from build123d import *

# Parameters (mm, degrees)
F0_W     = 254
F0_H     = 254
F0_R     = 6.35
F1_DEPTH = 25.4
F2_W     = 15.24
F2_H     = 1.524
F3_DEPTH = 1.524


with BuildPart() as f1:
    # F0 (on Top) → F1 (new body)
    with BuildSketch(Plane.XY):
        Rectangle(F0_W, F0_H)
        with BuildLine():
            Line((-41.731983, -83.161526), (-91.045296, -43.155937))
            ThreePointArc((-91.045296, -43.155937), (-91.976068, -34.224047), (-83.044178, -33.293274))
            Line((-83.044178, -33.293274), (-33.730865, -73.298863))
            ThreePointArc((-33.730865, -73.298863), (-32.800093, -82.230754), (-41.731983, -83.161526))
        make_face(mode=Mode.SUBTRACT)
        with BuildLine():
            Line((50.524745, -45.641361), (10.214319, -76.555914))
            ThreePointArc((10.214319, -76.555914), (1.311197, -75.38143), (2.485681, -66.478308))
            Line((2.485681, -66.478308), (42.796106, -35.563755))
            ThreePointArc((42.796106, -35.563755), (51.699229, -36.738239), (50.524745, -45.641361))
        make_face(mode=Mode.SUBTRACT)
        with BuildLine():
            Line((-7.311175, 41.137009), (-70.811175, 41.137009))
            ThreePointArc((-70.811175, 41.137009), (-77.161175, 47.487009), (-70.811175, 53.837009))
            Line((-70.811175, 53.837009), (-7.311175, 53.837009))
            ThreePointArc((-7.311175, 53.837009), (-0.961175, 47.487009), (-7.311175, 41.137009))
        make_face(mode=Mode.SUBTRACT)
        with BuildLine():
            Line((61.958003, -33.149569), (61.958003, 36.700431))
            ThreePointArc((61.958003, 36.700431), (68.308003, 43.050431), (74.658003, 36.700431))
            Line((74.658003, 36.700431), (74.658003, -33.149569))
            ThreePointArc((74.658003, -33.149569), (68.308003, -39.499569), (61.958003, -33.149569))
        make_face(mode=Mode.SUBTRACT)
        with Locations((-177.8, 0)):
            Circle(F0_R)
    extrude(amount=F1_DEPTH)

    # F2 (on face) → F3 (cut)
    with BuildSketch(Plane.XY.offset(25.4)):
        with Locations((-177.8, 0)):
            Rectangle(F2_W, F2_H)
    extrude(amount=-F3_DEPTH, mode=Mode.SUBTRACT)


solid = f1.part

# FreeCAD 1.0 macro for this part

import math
import FreeCAD as App
import Part
import Sketcher
from FreeCAD import Vector
Q = App.Units.Quantity

doc = App.newDocument("Part")
params = doc.addObject("Spreadsheet::Sheet", "Params")
for row, (alias, value) in enumerate([
    ("sketch1_diameter", "0.5 in"),
    ("sketch1_width", "10 in"),
    ("sketch1_length", "2 in"),
    ("sketch1_width2", "2.5 in"),
    ("sketch1_length2", "2.5 in"),
    ("pad1_length", "1 in"),
    ("sketch2_width", "0.6 in"),
    ("sketch2_height", "0.06 in"),
    ("pocket1_length", "0.06 in"),
], start=1):
    params.set(f"A{row}", alias)
    params.set(f"B{row}", "=" + value)
    params.setAlias(f"B{row}", alias)

body = doc.addObject("PartDesign::Body", "Body")
body.AllowCompound = True

# Sketch on XY plane
sketch1 = doc.addObject("Sketcher::SketchObject", "Sketch")
body.addObject(sketch1)
sketch1.AttachmentSupport = (doc.XY_Plane, [""])
sketch1.MapMode = "FlatFace"
sketch1.addGeometry([
    Part.LineSegment(Vector(-127, 127, 0), Vector(-127, -127, 0)),  # 0
    Part.LineSegment(Vector(-127, -127, 0), Vector(127, -127, 0)),  # 1
    Part.LineSegment(Vector(127, -127, 0), Vector(127, 127, 0)),  # 2
    Part.LineSegment(Vector(127, 127, 0), Vector(-127, 127, 0)),  # 3
    Part.ArcOfCircle(Part.Circle(Vector(-38, -78, 0), Vector(0, 0, 1), 6), math.radians(-129), math.radians(51)),  # 4
    Part.LineSegment(Vector(-42, -83, 0), Vector(-91, -43, 0)),  # 5
    Part.ArcOfCircle(Part.Circle(Vector(-87, -38, 0), Vector(0, 0, 1), 6), math.radians(51), math.radians(231)),  # 6
    Part.LineSegment(Vector(-83, -33, 0), Vector(-34, -73, 0)),  # 7
    Part.ArcOfCircle(Part.Circle(Vector(47, -41, 0), Vector(0, 0, 1), 6), math.radians(-53), math.radians(127)),  # 8
    Part.LineSegment(Vector(51, -46, 0), Vector(10, -77, 0)),  # 9
    Part.ArcOfCircle(Part.Circle(Vector(6, -72, 0), Vector(0, 0, 1), 6), math.radians(127), math.radians(307)),  # 10
    Part.LineSegment(Vector(2, -66, 0), Vector(43, -36, 0)),  # 11
    Part.ArcOfCircle(Part.Circle(Vector(-7, 47, 0), Vector(0, 0, 1), 6), math.radians(-90), math.radians(90)),  # 12
    Part.LineSegment(Vector(-7, 41, 0), Vector(-71, 41, 0)),  # 13
    Part.ArcOfCircle(Part.Circle(Vector(-71, 47, 0), Vector(0, 0, 1), 6), math.radians(90), math.radians(270)),  # 14
    Part.LineSegment(Vector(-71, 54, 0), Vector(-7, 54, 0)),  # 15
    Part.ArcOfCircle(Part.Circle(Vector(68, -33, 0), Vector(0, 0, 1), 6), math.radians(180), math.radians(360)),  # 16
    Part.LineSegment(Vector(62, -33, 0), Vector(62, 37, 0)),  # 17
    Part.ArcOfCircle(Part.Circle(Vector(68, 37, 0), Vector(0, 0, 1), 6), math.radians(0), math.radians(180)),  # 18
    Part.LineSegment(Vector(75, 37, 0), Vector(75, -33, 0)),  # 19
    Part.Circle(Vector(-178, 0, 0), Vector(0, 0, 1), 6),  # 20
], False)
sketch1.addConstraint([
    Sketcher.Constraint("Coincident", 0, 2, 1, 1),
    Sketcher.Constraint("Coincident", 1, 2, 2, 1),
    Sketcher.Constraint("Coincident", 2, 2, 3, 1),
    Sketcher.Constraint("Coincident", 3, 2, 0, 1),
    Sketcher.Constraint("Tangent", 4, 1, 5, 1),
    Sketcher.Constraint("Tangent", 5, 2, 6, 2),
    Sketcher.Constraint("Tangent", 6, 1, 7, 1),
    Sketcher.Constraint("Tangent", 7, 2, 4, 2),
    Sketcher.Constraint("Tangent", 8, 1, 9, 1),
    Sketcher.Constraint("Tangent", 9, 2, 10, 2),
    Sketcher.Constraint("Tangent", 10, 1, 11, 1),
    Sketcher.Constraint("Tangent", 11, 2, 8, 2),
    Sketcher.Constraint("Tangent", 12, 1, 13, 1),
    Sketcher.Constraint("Tangent", 13, 2, 14, 2),
    Sketcher.Constraint("Tangent", 14, 1, 15, 1),
    Sketcher.Constraint("Tangent", 15, 2, 12, 2),
    Sketcher.Constraint("Tangent", 16, 1, 17, 1),
    Sketcher.Constraint("Tangent", 17, 2, 18, 2),
    Sketcher.Constraint("Tangent", 18, 1, 19, 1),
    Sketcher.Constraint("Tangent", 19, 2, 16, 2),
    Sketcher.Constraint("Vertical", 0),
    Sketcher.Constraint("Horizontal", 1),
    Sketcher.Constraint("Vertical", 2),
    Sketcher.Constraint("Horizontal", 3),
    Sketcher.Constraint("Horizontal", 13),
    Sketcher.Constraint("Horizontal", 15),
    Sketcher.Constraint("Vertical", 17),
    Sketcher.Constraint("Vertical", 19),
    Sketcher.Constraint("Equal", 4, 6),
    Sketcher.Constraint("Equal", 6, 8),
    Sketcher.Constraint("Equal", 8, 10),
    Sketcher.Constraint("Equal", 10, 12),
    Sketcher.Constraint("Equal", 14, 16),
    Sketcher.Constraint("Equal", 18, 20),
    Sketcher.Constraint("Symmetric", 0, 2, 2, 2, -1, 1),
    Sketcher.Constraint("PointOnObject", 20, 3, -1),
    Sketcher.Constraint("Equal", 3, 0),
    Sketcher.Constraint("Diameter", 20, Q("0.5 in")),
    Sketcher.Constraint("DistanceX", 1, 1, 1, 2, Q("10 in")),
    Sketcher.Constraint("Distance", 9, Q("2 in")),
    Sketcher.Constraint("DistanceX", 13, 2, 13, 1, Q("2.5 in")),
    Sketcher.Constraint("DistanceX", 20, 3, -1, 1, Q("7 in")),
    Sketcher.Constraint("Distance", 5, Q("2.5 in")),
    Sketcher.Constraint("DistanceY", 17, 1, 17, 2, Q("2.75 in")),
    Sketcher.Constraint("DistanceX", -1, 1, 10, 3, Q("0.25 in")),
    Sketcher.Constraint("DistanceX", 12, 3, 8, 3, 53.971601),
    Sketcher.Constraint("DistanceY", 7, 2, 8, 1, 27.657502),
    Sketcher.Constraint("DistanceY", 10, 3, -1, 1, 71.517111),
    Sketcher.Constraint("DistanceY", -1, 1, 12, 3, 47.487009),
    Sketcher.Constraint("DistanceY", 16, 3, -1, 1, 33.149569),
    Sketcher.Constraint("DistanceY", 8, 1, -1, 1, 45.641361),
    Sketcher.Constraint("DistanceY", 4, 3, 6, 3, 40.005589),
    Sketcher.Constraint("DistanceX", 4, 3, 8, 3, 84.39185),
    Sketcher.Constraint("DistanceX", 12, 3, 16, 3, 75.619178),
])
sketch1.setExpression("Constraints[37]", "Params.sketch1_diameter")
sketch1.setExpression("Constraints[38]", "Params.sketch1_width")
sketch1.setExpression("Constraints[39]", "Params.sketch1_length")
sketch1.setExpression("Constraints[40]", "Params.sketch1_width2")
sketch1.setExpression("Constraints[42]", "Params.sketch1_length2")
pad1 = doc.addObject("PartDesign::Pad", "Pad")
body.addObject(pad1)
pad1.Profile = sketch1
pad1.setExpression("Length", "Params.pad1_length")

# Sketch on XY plane
sketch2 = doc.addObject("Sketcher::SketchObject", "Sketch001")
body.addObject(sketch2)
sketch2.AttachmentSupport = (doc.XY_Plane, [""])
sketch2.MapMode = "FlatFace"
sketch2.AttachmentOffset = App.Placement(Vector(0, 0, 1 * 25.4), App.Rotation())
sketch2.addGeometry([
    Part.LineSegment(Vector(-185.4, 0.8, 0), Vector(-185.4, -0.8, 0)),
    Part.LineSegment(Vector(-185.4, -0.8, 0), Vector(-170.2, -0.8, 0)),
    Part.LineSegment(Vector(-170.2, -0.8, 0), Vector(-170.2, 0.8, 0)),
    Part.LineSegment(Vector(-170.2, 0.8, 0), Vector(-185.4, 0.8, 0)),
], False)
sketch2.addConstraint([
    Sketcher.Constraint("Coincident", 0, 2, 1, 1),
    Sketcher.Constraint("Coincident", 1, 2, 2, 1),
    Sketcher.Constraint("Coincident", 2, 2, 3, 1),
    Sketcher.Constraint("Coincident", 3, 2, 0, 1),
    Sketcher.Constraint("Vertical", 0),
    Sketcher.Constraint("Horizontal", 1),
    Sketcher.Constraint("Vertical", 2),
    Sketcher.Constraint("Horizontal", 3),
    Sketcher.Constraint("DistanceX", 1, 1, 1, 2, Q("0.6 in")),
    Sketcher.Constraint("DistanceY", 0, 2, 0, 1, Q("0.06 in")),
    Sketcher.Constraint("DistanceX", 0, 2, -1, 1, Q("7.3 in")),
    Sketcher.Constraint("DistanceY", 0, 2, -1, 1, Q("0.03 in")),
])
sketch2.setExpression("Constraints[8]", "Params.sketch2_width")
sketch2.setExpression("Constraints[9]", "Params.sketch2_height")
pocket1 = doc.addObject("PartDesign::Pocket", "Pocket")
body.addObject(pocket1)
pocket1.Profile = sketch2
pocket1.setExpression("Length", "Params.pocket1_length")

doc.recompute()
